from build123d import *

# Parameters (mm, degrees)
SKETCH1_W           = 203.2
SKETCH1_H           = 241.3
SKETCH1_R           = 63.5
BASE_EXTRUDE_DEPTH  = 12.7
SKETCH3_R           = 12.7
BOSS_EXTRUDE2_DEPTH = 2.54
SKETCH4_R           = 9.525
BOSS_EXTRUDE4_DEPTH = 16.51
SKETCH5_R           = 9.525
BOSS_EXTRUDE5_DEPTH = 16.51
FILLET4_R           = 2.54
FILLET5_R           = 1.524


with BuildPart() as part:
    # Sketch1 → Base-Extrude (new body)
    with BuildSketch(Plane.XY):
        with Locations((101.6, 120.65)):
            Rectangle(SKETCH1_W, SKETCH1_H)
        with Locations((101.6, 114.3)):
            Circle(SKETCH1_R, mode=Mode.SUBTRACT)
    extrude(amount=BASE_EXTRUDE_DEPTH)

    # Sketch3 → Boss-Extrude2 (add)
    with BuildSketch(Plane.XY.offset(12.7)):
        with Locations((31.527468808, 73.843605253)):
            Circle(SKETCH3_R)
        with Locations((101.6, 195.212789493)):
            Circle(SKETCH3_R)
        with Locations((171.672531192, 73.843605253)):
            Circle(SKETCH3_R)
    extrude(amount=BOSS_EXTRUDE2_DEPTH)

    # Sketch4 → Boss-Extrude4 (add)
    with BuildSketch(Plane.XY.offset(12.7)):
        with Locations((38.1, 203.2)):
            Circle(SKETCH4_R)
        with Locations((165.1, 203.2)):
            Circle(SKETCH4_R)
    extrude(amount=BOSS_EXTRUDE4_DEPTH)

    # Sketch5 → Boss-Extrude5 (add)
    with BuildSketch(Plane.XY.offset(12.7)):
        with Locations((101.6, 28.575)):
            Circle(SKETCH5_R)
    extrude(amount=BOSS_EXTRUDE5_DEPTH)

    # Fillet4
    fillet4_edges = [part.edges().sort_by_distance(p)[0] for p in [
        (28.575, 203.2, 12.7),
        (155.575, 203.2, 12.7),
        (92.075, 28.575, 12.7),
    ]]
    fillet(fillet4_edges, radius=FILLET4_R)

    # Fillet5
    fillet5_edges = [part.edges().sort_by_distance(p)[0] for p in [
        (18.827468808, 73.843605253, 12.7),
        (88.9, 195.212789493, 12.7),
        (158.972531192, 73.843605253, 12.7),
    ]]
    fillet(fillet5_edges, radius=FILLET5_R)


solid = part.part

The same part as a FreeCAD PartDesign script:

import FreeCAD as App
import Part
import Sketcher

V = App.Vector
Q = App.Units.Quantity


def edges_at(feature, points):
    """Names of the edges that pass closest to the given points."""
    edges = feature.Shape.Edges
    near = lambda p: min(range(len(edges)), key=lambda i: edges[i].distToShape(Part.Vertex(*p))[0])
    return sorted({f"Edge{near(p) + 1}" for p in points})

doc = App.newDocument("Part")
params = doc.addObject("Spreadsheet::Sheet", "Params")
for row, (alias, value) in enumerate([
    ("sketch1_diameter", "5 in"),
    ("sketch1_width", "8 in"),
    ("sketch1_height", "9.5 in"),
    ("pad1_length", "0.5 in"),
    ("sketch2_diameter", "1 in"),
    ("pad2_length", "0.1 in"),
    ("sketch3_diameter", "0.75 in"),
    ("pad3_length", "0.65 in"),
    ("sketch4_diameter", "0.75 in"),
    ("pad4_length", "0.65 in"),
    ("fillet_radius", "0.1 in"),
    ("fillet2_radius", "0.06 in"),
], start=1):
    params.set(f"A{row}", alias)
    params.set(f"B{row}", "=" + value)
    params.setAlias(f"B{row}", alias)

body = doc.addObject("PartDesign::Body", "Body")

# Sketch on XY plane
sketch1 = body.newObject("Sketcher::SketchObject", "Sketch")
sketch1.AttachmentSupport = (doc.getObject("XY_Plane"), [""])
sketch1.MapMode = "FlatFace"
sketch1.addGeometry(Part.LineSegment(V(0, 241, 0), V(0, 0, 0)), False)
sketch1.addGeometry(Part.LineSegment(V(0, 0, 0), V(203, 0, 0)), False)
sketch1.addGeometry(Part.LineSegment(V(203, 0, 0), V(203, 241, 0)), False)
sketch1.addGeometry(Part.LineSegment(V(203, 241, 0), V(0, 241, 0)), False)
sketch1.addGeometry(Part.Circle(V(102, 114, 0), V(0, 0, 1), 64), False)
sketch1.addConstraint(Sketcher.Constraint("Coincident", 0, 2, 1, 1))
sketch1.addConstraint(Sketcher.Constraint("Coincident", 1, 2, 2, 1))
sketch1.addConstraint(Sketcher.Constraint("Coincident", 2, 2, 3, 1))
sketch1.addConstraint(Sketcher.Constraint("Coincident", 3, 2, 0, 1))
sketch1.addConstraint(Sketcher.Constraint("Vertical", 0))
sketch1.addConstraint(Sketcher.Constraint("Horizontal", 1))
sketch1.addConstraint(Sketcher.Constraint("Vertical", 2))
sketch1.addConstraint(Sketcher.Constraint("Horizontal", 3))
sketch1.addConstraint(Sketcher.Constraint("Coincident", 0, 2, -1, 1))
sketch1.addConstraint(Sketcher.Constraint("Diameter", 4, Q("5 in")))
sketch1.addConstraint(Sketcher.Constraint("DistanceX", 1, 1, 1, 2, Q("8 in")))
sketch1.addConstraint(Sketcher.Constraint("DistanceY", 0, 2, 0, 1, Q("9.5 in")))
sketch1.addConstraint(Sketcher.Constraint("DistanceX", -1, 1, 4, 3, Q("4 in")))
sketch1.addConstraint(Sketcher.Constraint("DistanceY", 4, 3, 2, 2, Q("5 in")))
sketch1.setExpression("Constraints[9]", "Params.sketch1_diameter")
sketch1.setExpression("Constraints[10]", "Params.sketch1_width")
sketch1.setExpression("Constraints[11]", "Params.sketch1_height")
pad1 = body.newObject("PartDesign::Pad", "Pad")
pad1.Profile = sketch1
pad1.setExpression("Length", "Params.pad1_length")

# Sketch on XY plane
sketch2 = body.newObject("Sketcher::SketchObject", "Sketch001")
sketch2.AttachmentSupport = (doc.getObject("XY_Plane"), [""])
sketch2.MapMode = "FlatFace"
sketch2.AttachmentOffset = App.Placement(V(0, 0, 0.5 * 25.4), App.Rotation())
sketch2.addGeometry(Part.Circle(V(32, 74, 0), V(0, 0, 1), 13), False)
sketch2.addGeometry(Part.Circle(V(102, 195, 0), V(0, 0, 1), 13), False)
sketch2.addGeometry(Part.Circle(V(172, 74, 0), V(0, 0, 1), 13), False)
sketch2.addConstraint(Sketcher.Constraint("Equal", 0, 1))
sketch2.addConstraint(Sketcher.Constraint("Equal", 1, 2))
sketch2.addConstraint(Sketcher.Constraint("Horizontal", 0, 3, 2, 3))
sketch2.addConstraint(Sketcher.Constraint("Diameter", 0, Q("1 in")))
sketch2.addConstraint(Sketcher.Constraint("DistanceX", -1, 1, 1, 3, Q("4 in")))
sketch2.addConstraint(Sketcher.Constraint("DistanceX", -1, 1, 0, 3, Q("31.527469 mm")))
sketch2.addConstraint(Sketcher.Constraint("DistanceY", -1, 1, 1, 3, Q("195.212789 mm")))
sketch2.addConstraint(Sketcher.Constraint("DistanceX", -1, 1, 2, 3, Q("171.672531 mm")))
sketch2.addConstraint(Sketcher.Constraint("DistanceY", -1, 1, 0, 3, Q("73.843605 mm")))
sketch2.setExpression("Constraints[3]", "Params.sketch2_diameter")
pad2 = body.newObject("PartDesign::Pad", "Pad001")
pad2.Profile = sketch2
pad2.setExpression("Length", "Params.pad2_length")

# Sketch on XY plane
sketch3 = body.newObject("Sketcher::SketchObject", "Sketch002")
sketch3.AttachmentSupport = (doc.getObject("XY_Plane"), [""])
sketch3.MapMode = "FlatFace"
sketch3.AttachmentOffset = App.Placement(V(0, 0, 0.5 * 25.4), App.Rotation())
sketch3.addGeometry(Part.Circle(V(38, 203, 0), V(0, 0, 1), 10), False)
sketch3.addGeometry(Part.Circle(V(165, 203, 0), V(0, 0, 1), 10), False)
sketch3.addConstraint(Sketcher.Constraint("Equal", 0, 1))
sketch3.addConstraint(Sketcher.Constraint("Horizontal", 0, 3, 1, 3))
sketch3.addConstraint(Sketcher.Constraint("Diameter", 0, Q("0.75 in")))
sketch3.addConstraint(Sketcher.Constraint("DistanceY", -1, 1, 0, 3, Q("8 in")))
sketch3.addConstraint(Sketcher.Constraint("DistanceX", 0, 3, 1, 3, Q("5 in")))
sketch3.addConstraint(Sketcher.Constraint("DistanceX", -1, 1, 0, 3, Q("1.5 in")))
sketch3.setExpression("Constraints[2]", "Params.sketch3_diameter")
pad3 = body.newObject("PartDesign::Pad", "Pad002")
pad3.Profile = sketch3
pad3.setExpression("Length", "Params.pad3_length")

# Sketch on XY plane
sketch4 = body.newObject("Sketcher::SketchObject", "Sketch003")
sketch4.AttachmentSupport = (doc.getObject("XY_Plane"), [""])
sketch4.MapMode = "FlatFace"
sketch4.AttachmentOffset = App.Placement(V(0, 0, 0.5 * 25.4), App.Rotation())
sketch4.addGeometry(Part.Circle(V(102, 29, 0), V(0, 0, 1), 10), False)
sketch4.addConstraint(Sketcher.Constraint("Diameter", 0, Q("0.75 in")))
sketch4.addConstraint(Sketcher.Constraint("DistanceX", -1, 1, 0, 3, Q("4 in")))
sketch4.addConstraint(Sketcher.Constraint("DistanceY", -1, 1, 0, 3, Q("1.125 in")))
sketch4.setExpression("Constraints[0]", "Params.sketch4_diameter")
pad4 = body.newObject("PartDesign::Pad", "Pad003")
pad4.Profile = sketch4
pad4.setExpression("Length", "Params.pad4_length")
doc.recompute()

fillet = body.newObject("PartDesign::Fillet", "Fillet")
fillet.Base = (pad4, edges_at(pad4, [(28.575, 203.2, 12.7), (155.575, 203.2, 12.7), (92.075, 28.575, 12.7)]))
fillet.setExpression("Radius", "Params.fillet_radius")
doc.recompute()

fillet2 = body.newObject("PartDesign::Fillet", "Fillet001")
fillet2.Base = (fillet, edges_at(fillet, [(18.827, 73.844, 12.7), (88.9, 195.213, 12.7), (158.973, 73.844, 12.7)]))
fillet2.setExpression("Radius", "Params.fillet2_radius")

doc.recompute()
